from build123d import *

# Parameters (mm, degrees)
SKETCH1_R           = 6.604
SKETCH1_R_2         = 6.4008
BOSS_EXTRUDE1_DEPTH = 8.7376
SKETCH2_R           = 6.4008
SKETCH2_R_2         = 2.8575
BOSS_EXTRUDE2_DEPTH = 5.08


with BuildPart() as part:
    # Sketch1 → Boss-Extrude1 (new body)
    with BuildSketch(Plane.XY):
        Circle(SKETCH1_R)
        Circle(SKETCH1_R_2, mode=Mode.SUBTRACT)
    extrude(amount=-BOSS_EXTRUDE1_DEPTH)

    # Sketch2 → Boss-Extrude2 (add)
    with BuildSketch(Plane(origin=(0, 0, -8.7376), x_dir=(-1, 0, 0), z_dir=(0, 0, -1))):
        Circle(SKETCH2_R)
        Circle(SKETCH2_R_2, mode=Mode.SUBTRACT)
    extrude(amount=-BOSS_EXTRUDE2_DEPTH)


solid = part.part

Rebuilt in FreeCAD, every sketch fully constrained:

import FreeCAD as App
import Part
import Sketcher
Q = App.Units.Quantity

doc = App.newDocument("Part")
body = doc.addObject("PartDesign::Body", "Body")

sketch1 = body.newObject("Sketcher::SketchObject", "Sketch")
sketch1.AttachmentSupport = (doc.getObject("XY_Plane"), [""])
sketch1.MapMode = "FlatFace"
sketch1.addGeometry([
    Part.Circle(App.Vector(0, 0, 0), App.Vector(0, 0, 1), 7),
    Part.Circle(App.Vector(0, 0, 0), App.Vector(0, 0, 1), 6),
], False)
sketch1.addConstraint([
    Sketcher.Constraint("Coincident", 0, 3, -1, 1),
    Sketcher.Constraint("Coincident", 1, 3, -1, 1),
    Sketcher.Constraint("Diameter", 0, Q("0.52 in")),
    Sketcher.Constraint("Diameter", 1, Q("0.504 in")),
])
pad1 = body.newObject("PartDesign::Pad", "Pad")
pad1.Profile = sketch1
pad1.Length = Q("0.344 in")
pad1.Reversed = True

sketch2 = body.newObject("Sketcher::SketchObject", "Sketch001")
sketch2.AttachmentSupport = (doc.getObject("XY_Plane"), [""])
sketch2.MapMode = "FlatFace"
sketch2.AttachmentOffset = App.Placement(App.Vector(0, 0, -0.344 * 25.4), App.Rotation())
sketch2.addGeometry([
    Part.Circle(App.Vector(0, 0, 0), App.Vector(0, 0, 1), 6.4),
    Part.Circle(App.Vector(0, 0, 0), App.Vector(0, 0, 1), 2.9),
], False)
sketch2.addConstraint([
    Sketcher.Constraint("Coincident", 0, 3, -1, 1),
    Sketcher.Constraint("Coincident", 1, 3, -1, 1),
    Sketcher.Constraint("Diameter", 0, Q("0.504 in")),
    Sketcher.Constraint("Diameter", 1, Q("0.225 in")),
])
pad2 = body.newObject("PartDesign::Pad", "Pad001")
pad2.Profile = sketch2
pad2.Length = Q("0.2 in")

doc.recompute()
